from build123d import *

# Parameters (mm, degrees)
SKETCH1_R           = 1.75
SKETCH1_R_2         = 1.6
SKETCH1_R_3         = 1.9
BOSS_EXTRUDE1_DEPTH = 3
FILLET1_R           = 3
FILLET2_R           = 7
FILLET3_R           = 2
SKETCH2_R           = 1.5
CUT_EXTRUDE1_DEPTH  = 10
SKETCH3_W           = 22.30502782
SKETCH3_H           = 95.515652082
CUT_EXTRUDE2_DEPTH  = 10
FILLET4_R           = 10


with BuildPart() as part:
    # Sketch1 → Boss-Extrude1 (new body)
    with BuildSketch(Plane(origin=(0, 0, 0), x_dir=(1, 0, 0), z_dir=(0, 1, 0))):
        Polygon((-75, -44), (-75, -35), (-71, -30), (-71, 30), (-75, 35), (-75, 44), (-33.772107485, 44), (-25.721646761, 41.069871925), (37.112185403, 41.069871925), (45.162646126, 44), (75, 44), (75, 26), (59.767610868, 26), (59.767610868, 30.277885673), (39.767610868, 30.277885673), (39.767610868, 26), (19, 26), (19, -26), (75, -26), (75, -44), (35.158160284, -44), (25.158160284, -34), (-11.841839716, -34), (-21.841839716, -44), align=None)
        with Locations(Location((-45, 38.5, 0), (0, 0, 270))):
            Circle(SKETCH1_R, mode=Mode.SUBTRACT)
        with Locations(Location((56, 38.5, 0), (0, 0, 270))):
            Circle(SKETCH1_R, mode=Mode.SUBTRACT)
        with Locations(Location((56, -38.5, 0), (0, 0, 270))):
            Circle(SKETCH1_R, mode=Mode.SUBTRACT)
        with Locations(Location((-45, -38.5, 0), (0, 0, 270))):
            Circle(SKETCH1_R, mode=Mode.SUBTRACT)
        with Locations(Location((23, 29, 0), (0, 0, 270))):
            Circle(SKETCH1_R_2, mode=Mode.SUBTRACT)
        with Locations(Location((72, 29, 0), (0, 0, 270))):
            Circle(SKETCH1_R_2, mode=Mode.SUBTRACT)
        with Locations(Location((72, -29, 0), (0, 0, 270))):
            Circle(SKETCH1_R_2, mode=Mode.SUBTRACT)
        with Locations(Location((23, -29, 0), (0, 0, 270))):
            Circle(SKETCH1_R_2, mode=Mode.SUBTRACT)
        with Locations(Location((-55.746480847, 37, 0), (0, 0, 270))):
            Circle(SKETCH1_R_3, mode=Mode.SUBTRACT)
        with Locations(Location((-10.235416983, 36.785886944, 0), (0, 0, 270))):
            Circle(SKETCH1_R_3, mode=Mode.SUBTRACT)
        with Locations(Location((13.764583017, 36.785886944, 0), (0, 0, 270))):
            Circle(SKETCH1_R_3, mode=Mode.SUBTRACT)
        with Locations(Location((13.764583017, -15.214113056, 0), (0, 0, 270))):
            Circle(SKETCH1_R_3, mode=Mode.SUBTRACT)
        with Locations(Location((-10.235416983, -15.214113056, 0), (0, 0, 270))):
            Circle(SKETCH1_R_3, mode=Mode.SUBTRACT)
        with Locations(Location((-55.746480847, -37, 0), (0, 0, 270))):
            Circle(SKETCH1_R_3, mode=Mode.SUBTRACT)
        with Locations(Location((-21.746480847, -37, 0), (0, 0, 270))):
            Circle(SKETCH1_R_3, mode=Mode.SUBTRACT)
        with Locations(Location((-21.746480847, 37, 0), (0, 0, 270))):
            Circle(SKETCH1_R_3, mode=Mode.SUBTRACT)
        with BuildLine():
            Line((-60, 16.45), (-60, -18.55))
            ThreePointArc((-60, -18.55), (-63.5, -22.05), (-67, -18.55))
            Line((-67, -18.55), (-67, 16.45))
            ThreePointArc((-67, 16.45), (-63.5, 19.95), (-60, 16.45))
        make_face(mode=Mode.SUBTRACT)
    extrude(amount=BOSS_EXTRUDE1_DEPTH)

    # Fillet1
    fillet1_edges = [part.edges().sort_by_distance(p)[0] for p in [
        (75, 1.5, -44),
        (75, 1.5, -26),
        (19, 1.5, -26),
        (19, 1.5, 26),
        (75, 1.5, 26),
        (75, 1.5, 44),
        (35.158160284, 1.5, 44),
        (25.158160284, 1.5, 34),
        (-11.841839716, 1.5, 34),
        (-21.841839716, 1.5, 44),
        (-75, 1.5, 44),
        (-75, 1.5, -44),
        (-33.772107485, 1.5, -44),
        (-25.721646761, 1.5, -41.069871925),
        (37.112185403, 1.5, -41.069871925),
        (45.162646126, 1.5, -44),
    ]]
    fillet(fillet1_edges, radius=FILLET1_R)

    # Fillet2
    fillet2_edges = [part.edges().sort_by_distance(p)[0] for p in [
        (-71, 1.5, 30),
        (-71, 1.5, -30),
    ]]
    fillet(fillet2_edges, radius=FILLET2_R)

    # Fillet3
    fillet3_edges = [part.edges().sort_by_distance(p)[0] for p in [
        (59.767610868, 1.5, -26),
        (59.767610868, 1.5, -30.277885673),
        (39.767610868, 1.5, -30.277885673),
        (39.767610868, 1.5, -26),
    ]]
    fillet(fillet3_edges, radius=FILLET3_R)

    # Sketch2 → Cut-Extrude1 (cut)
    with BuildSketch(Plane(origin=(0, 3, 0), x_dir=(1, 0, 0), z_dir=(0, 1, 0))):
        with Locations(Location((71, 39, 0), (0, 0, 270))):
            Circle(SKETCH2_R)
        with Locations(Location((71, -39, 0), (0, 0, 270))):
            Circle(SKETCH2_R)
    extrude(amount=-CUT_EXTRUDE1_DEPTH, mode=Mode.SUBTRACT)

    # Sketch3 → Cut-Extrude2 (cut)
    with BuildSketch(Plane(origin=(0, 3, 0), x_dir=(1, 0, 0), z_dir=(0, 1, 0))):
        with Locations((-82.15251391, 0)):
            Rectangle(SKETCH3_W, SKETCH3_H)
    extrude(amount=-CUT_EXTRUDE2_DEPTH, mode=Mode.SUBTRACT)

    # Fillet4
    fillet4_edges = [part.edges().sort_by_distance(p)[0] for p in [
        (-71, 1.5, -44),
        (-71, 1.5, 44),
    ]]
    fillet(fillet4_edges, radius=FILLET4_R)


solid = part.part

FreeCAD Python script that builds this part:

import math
import FreeCAD as App
import Part
import Sketcher

V = App.Vector
Q = App.Units.Quantity


def edges_at(feature, points):
    """Names of the edges that pass closest to the given points."""
    edges = feature.Shape.Edges
    near = lambda p: min(range(len(edges)), key=lambda i: edges[i].distToShape(Part.Vertex(*p))[0])
    return sorted({f"Edge{near(p) + 1}" for p in points})

doc = App.newDocument("Part")
body = doc.addObject("PartDesign::Body", "Body")

# Sketch on XZ plane
sketch1 = doc.addObject("Sketcher::SketchObject", "Sketch")
body.addObject(sketch1)
sketch1.AttachmentSupport = (doc.XZ_Plane, [""])
sketch1.MapMode = "FlatFace"
sketch1.addGeometry([
    Part.LineSegment(V(-75, 35, 0), V(-75, 44, 0)),  # 0
    Part.LineSegment(V(-75, 44, 0), V(-21.8, 44, 0)),  # 1
    Part.LineSegment(V(-21.8, 44, 0), V(-11.8, 34, 0)),  # 2
    Part.LineSegment(V(-11.8, 34, 0), V(25.2, 34, 0)),  # 3
    Part.LineSegment(V(25.2, 34, 0), V(35.2, 44, 0)),  # 4
    Part.LineSegment(V(35.2, 44, 0), V(75, 44, 0)),  # 5
    Part.LineSegment(V(75, 44, 0), V(75, 26, 0)),  # 6
    Part.LineSegment(V(75, 26, 0), V(19, 26, 0)),  # 7
    Part.LineSegment(V(19, 26, 0), V(19, -26, 0)),  # 8
    Part.LineSegment(V(19, -26, 0), V(39.8, -26, 0)),  # 9
    Part.LineSegment(V(39.8, -26, 0), V(39.8, -30.3, 0)),  # 10
    Part.LineSegment(V(39.8, -30.3, 0), V(59.8, -30.3, 0)),  # 11
    Part.LineSegment(V(59.8, -30.3, 0), V(59.8, -26, 0)),  # 12
    Part.LineSegment(V(59.8, -26, 0), V(75, -26, 0)),  # 13
    Part.LineSegment(V(75, -26, 0), V(75, -44, 0)),  # 14
    Part.LineSegment(V(75, -44, 0), V(45.2, -44, 0)),  # 15
    Part.LineSegment(V(45.2, -44, 0), V(37.1, -41.1, 0)),  # 16
    Part.LineSegment(V(37.1, -41.1, 0), V(-25.7, -41.1, 0)),  # 17
    Part.LineSegment(V(-25.7, -41.1, 0), V(-33.8, -44, 0)),  # 18
    Part.LineSegment(V(-33.8, -44, 0), V(-75, -44, 0)),  # 19
    Part.LineSegment(V(-75, -44, 0), V(-75, -35, 0)),  # 20
    Part.LineSegment(V(-75, -35, 0), V(-71, -30, 0)),  # 21
    Part.LineSegment(V(-71, -30, 0), V(-71, 30, 0)),  # 22
    Part.LineSegment(V(-71, 30, 0), V(-75, 35, 0)),  # 23
    Part.Circle(V(56, 38.5, 0), V(0, 0, 1), 1.8),  # 24
    Part.Circle(V(72, 29, 0), V(0, 0, 1), 1.6),  # 25
    Part.Circle(V(23, 29, 0), V(0, 0, 1), 1.6),  # 26
    Part.Circle(V(13.8, 15.2, 0), V(0, 0, 1), 1.9),  # 27
    Part.Circle(V(-21.7, 37, 0), V(0, 0, 1), 1.9),  # 28
    Part.Circle(V(-45, 38.5, 0), V(0, 0, 1), 1.8),  # 29
    Part.Circle(V(-55.7, 37, 0), V(0, 0, 1), 1.9),  # 30
    Part.Circle(V(-10.2, 15.2, 0), V(0, 0, 1), 1.9),  # 31
    Part.LineSegment(V(-60, -16.4, 0), V(-60, 18.6, 0)),  # 32
    Part.ArcOfCircle(Part.Circle(V(-63.5, 18.6, 0), V(0, 0, 1), 3.5), math.radians(0), math.radians(180)),  # 33
    Part.LineSegment(V(-67, 18.6, 0), V(-67, -16.4, 0)),  # 34
    Part.ArcOfCircle(Part.Circle(V(-63.5, -16.4, 0), V(0, 0, 1), 3.5), math.radians(180), math.radians(360)),  # 35
    Part.Circle(V(72, -29, 0), V(0, 0, 1), 1.6),  # 36
    Part.Circle(V(56, -38.5, 0), V(0, 0, 1), 1.8),  # 37
    Part.Circle(V(23, -29, 0), V(0, 0, 1), 1.6),  # 38
    Part.Circle(V(13.8, -36.8, 0), V(0, 0, 1), 1.9),  # 39
    Part.Circle(V(-10.2, -36.8, 0), V(0, 0, 1), 1.9),  # 40
    Part.Circle(V(-21.7, -37, 0), V(0, 0, 1), 1.9),  # 41
    Part.Circle(V(-45, -38.5, 0), V(0, 0, 1), 1.8),  # 42
    Part.Circle(V(-55.7, -37, 0), V(0, 0, 1), 1.9),  # 43
], False)
sketch1.addConstraint([
    Sketcher.Constraint("Coincident", 0, 2, 1, 1),
    Sketcher.Constraint("Coincident", 1, 2, 2, 1),
    Sketcher.Constraint("Coincident", 2, 2, 3, 1),
    Sketcher.Constraint("Coincident", 3, 2, 4, 1),
    Sketcher.Constraint("Coincident", 4, 2, 5, 1),
    Sketcher.Constraint("Coincident", 5, 2, 6, 1),
    Sketcher.Constraint("Coincident", 6, 2, 7, 1),
    Sketcher.Constraint("Coincident", 7, 2, 8, 1),
    Sketcher.Constraint("Coincident", 8, 2, 9, 1),
    Sketcher.Constraint("Coincident", 9, 2, 10, 1),
    Sketcher.Constraint("Coincident", 10, 2, 11, 1),
    Sketcher.Constraint("Coincident", 11, 2, 12, 1),
    Sketcher.Constraint("Coincident", 12, 2, 13, 1),
    Sketcher.Constraint("Coincident", 13, 2, 14, 1),
    Sketcher.Constraint("Coincident", 14, 2, 15, 1),
    Sketcher.Constraint("Coincident", 15, 2, 16, 1),
    Sketcher.Constraint("Coincident", 16, 2, 17, 1),
    Sketcher.Constraint("Coincident", 17, 2, 18, 1),
    Sketcher.Constraint("Coincident", 18, 2, 19, 1),
    Sketcher.Constraint("Coincident", 19, 2, 20, 1),
    Sketcher.Constraint("Coincident", 20, 2, 21, 1),
    Sketcher.Constraint("Coincident", 21, 2, 22, 1),
    Sketcher.Constraint("Coincident", 22, 2, 23, 1),
    Sketcher.Constraint("Coincident", 23, 2, 0, 1),
    Sketcher.Constraint("Tangent", 32, 2, 33, 1),
    Sketcher.Constraint("Tangent", 33, 2, 34, 1),
    Sketcher.Constraint("Tangent", 34, 2, 35, 1),
    Sketcher.Constraint("Tangent", 35, 2, 32, 1),
    Sketcher.Constraint("Vertical", 0),
    Sketcher.Constraint("Horizontal", 1),
    Sketcher.Constraint("Horizontal", 3),
    Sketcher.Constraint("Horizontal", 5),
    Sketcher.Constraint("Vertical", 6),
    Sketcher.Constraint("Horizontal", 7),
    Sketcher.Constraint("Vertical", 8),
    Sketcher.Constraint("Horizontal", 9),
    Sketcher.Constraint("Vertical", 10),
    Sketcher.Constraint("Horizontal", 11),
    Sketcher.Constraint("Vertical", 12),
    Sketcher.Constraint("Horizontal", 13),
    Sketcher.Constraint("Vertical", 14),
    Sketcher.Constraint("Horizontal", 15),
    Sketcher.Constraint("Horizontal", 17),
    Sketcher.Constraint("Horizontal", 19),
    Sketcher.Constraint("Vertical", 20),
    Sketcher.Constraint("Vertical", 22),
    Sketcher.Constraint("Vertical", 32),
    Sketcher.Constraint("Vertical", 34),
    Sketcher.Constraint("Equal", 25, 26),
    Sketcher.Constraint("Equal", 27, 28),
    Sketcher.Constraint("Equal", 24, 29),
    Sketcher.Constraint("Equal", 28, 30),
    Sketcher.Constraint("Equal", 30, 31),
    Sketcher.Constraint("Equal", 26, 36),
    Sketcher.Constraint("Equal", 29, 37),
    Sketcher.Constraint("Equal", 36, 38),
    Sketcher.Constraint("Equal", 31, 39),
    Sketcher.Constraint("Equal", 39, 40),
    Sketcher.Constraint("Equal", 40, 41),
    Sketcher.Constraint("Equal", 37, 42),
    Sketcher.Constraint("Equal", 41, 43),
    Sketcher.Constraint("Symmetric", 0, 2, 14, 2, -1, 1),
    Sketcher.Constraint("Symmetric", 5, 2, 19, 2, -1, 1),
    Sketcher.Constraint("Symmetric", 0, 2, 5, 2, -2),
    Sketcher.Constraint("Symmetric", 25, 3, 36, 3, -1),
    Sketcher.Constraint("Symmetric", 24, 3, 37, 3, -1),
    Sketcher.Constraint("Symmetric", 26, 3, 38, 3, -1),
    Sketcher.Constraint("Symmetric", 28, 3, 41, 3, -1),
    Sketcher.Constraint("Symmetric", 29, 3, 42, 3, -1),
    Sketcher.Constraint("Symmetric", 30, 3, 43, 3, -1),
    Sketcher.Constraint("Perpendicular", 2, 4),
    Sketcher.Constraint("Horizontal", 25, 3, 26, 3),
    Sketcher.Constraint("Horizontal", 24, 3, 29, 3),
    Sketcher.Constraint("Horizontal", 28, 3, 30, 3),
    Sketcher.Constraint("Horizontal", 27, 3, 31, 3),
    Sketcher.Constraint("Horizontal", 39, 3, 40, 3),
    Sketcher.Constraint("Horizontal", 9, 2, 12, 2),
    Sketcher.Constraint("Vertical", 27, 3, 39, 3),
    Sketcher.Constraint("Vertical", 31, 3, 40, 3),
    Sketcher.Constraint("Equal", 6, 14),
    Sketcher.Constraint("Equal", 0, 20),
    Sketcher.Constraint("Equal", 2, 4),
    Sketcher.Constraint("Equal", 16, 18),
    Sketcher.Constraint("Equal", 21, 23),
    Sketcher.Constraint("Diameter", 24, Q("3.5 mm")),
    Sketcher.Constraint("Diameter", 25, Q("3.2 mm")),
    Sketcher.Constraint("Diameter", 27, Q("3.8 mm")),
    Sketcher.Constraint("Radius", 33, Q("3.5 mm")),
    Sketcher.Constraint("DistanceX", 3, 1, 3, 2, Q("37 mm")),
    Sketcher.Constraint("DistanceX", 7, 2, 7, 1, Q("56 mm")),
    Sketcher.Constraint("DistanceX", 11, 1, 11, 2, Q("20 mm")),
    Sketcher.Constraint("DistanceY", 0, 1, 0, 2, Q("9 mm")),
    Sketcher.Constraint("DistanceY", 6, 2, 6, 1, Q("18 mm")),
    Sketcher.Constraint("DistanceY", 8, 2, 8, 1, Q("52 mm")),
    Sketcher.Constraint("DistanceY", 22, 1, 22, 2, Q("60 mm")),
    Sketcher.Constraint("DistanceY", 32, 1, 32, 2, Q("35 mm")),
    Sketcher.Constraint("Angle", 16, Q("160 deg")),
    Sketcher.Constraint("DistanceX", -1, 1, 24, 3, Q("56 mm")),
    Sketcher.Constraint("DistanceX", -1, 1, 25, 3, Q("72 mm")),
    Sketcher.Constraint("DistanceY", -1, 1, 25, 3, Q("29 mm")),
    Sketcher.Constraint("DistanceX", -1, 1, 26, 3, Q("23 mm")),
    Sketcher.Constraint("DistanceY", -1, 1, 28, 3, Q("37 mm")),
    Sketcher.Constraint("DistanceX", 29, 3, -1, 1, Q("45 mm")),
    Sketcher.Constraint("DistanceX", 0, 2, -1, 1, Q("75 mm")),
    Sketcher.Constraint("DistanceY", -1, 1, 2, 2, Q("34 mm")),
    Sketcher.Constraint("DistanceX", 21, 2, -1, 1, Q("71 mm")),
    Sketcher.Constraint("DistanceX", 32, 2, -1, 1, Q("60 mm")),
    Sketcher.Constraint("DistanceX", 30, 3, 28, 3, Q("34 mm")),
    Sketcher.Constraint("DistanceX", 31, 3, 27, 3, Q("24 mm")),
    Sketcher.Constraint("DistanceY", 37, 3, 24, 3, Q("77 mm")),
    Sketcher.Constraint("DistanceY", 39, 3, 27, 3, Q("52 mm")),
    Sketcher.Constraint("DistanceY", -1, 1, 33, 3, Q("18.55 mm")),
    Sketcher.Constraint("DistanceY", 39, 3, 10, 2, Q("6.508001 mm")),
    Sketcher.Constraint("DistanceX", 1, 1, 1, 2, Q("53.15816 mm")),
    Sketcher.Constraint("DistanceX", 9, 1, 9, 2, Q("20.767611 mm")),
    Sketcher.Constraint("Distance", 16, Q("8.567121 mm")),
    Sketcher.Constraint("DistanceX", 15, 2, 15, 1, Q("29.837354 mm")),
    Sketcher.Constraint("DistanceX", 17, 2, 17, 1, Q("62.833832 mm")),
    Sketcher.Constraint("DistanceY", 10, 2, 10, 1, Q("4.277886 mm")),
    Sketcher.Constraint("DistanceX", 28, 3, -1, 1, Q("21.746481 mm")),
    Sketcher.Constraint("DistanceX", 17, 2, 40, 3, Q("15.48623 mm")),
])
pad1 = doc.addObject("PartDesign::Pad", "Pad")
body.addObject(pad1)
pad1.Profile = sketch1
pad1.Length = 3
pad1.Reversed = True
doc.recompute()

fillet = doc.addObject("PartDesign::Fillet", "Fillet")
body.addObject(fillet)
fillet.Base = (pad1, edges_at(pad1, [
    (75, 1.5, -44),
    (75, 1.5, -26),
    (19, 1.5, -26),
    (19, 1.5, 26),
    (75, 1.5, 26),
    (75, 1.5, 44),
    (35.158, 1.5, 44),
    (25.158, 1.5, 34),
    (-11.842, 1.5, 34),
    (-21.842, 1.5, 44),
    (-75, 1.5, 44),
    (-75, 1.5, -44),
    (-33.772, 1.5, -44),
    (-25.722, 1.5, -41.07),
    (37.112, 1.5, -41.07),
    (45.163, 1.5, -44),
]))
fillet.Radius = 3
doc.recompute()

fillet2 = doc.addObject("PartDesign::Fillet", "Fillet001")
body.addObject(fillet2)
fillet2.Base = (fillet, edges_at(fillet, [(-71, 1.5, 30), (-71, 1.5, -30)]))
fillet2.Radius = 7
doc.recompute()

fillet3 = doc.addObject("PartDesign::Fillet", "Fillet002")
body.addObject(fillet3)
fillet3.Base = (fillet2, edges_at(fillet2, [
    (59.768, 1.5, -26),
    (59.768, 1.5, -30.278),
    (39.768, 1.5, -30.278),
    (39.768, 1.5, -26),
]))
fillet3.Radius = 2

# Sketch on XZ plane
sketch2 = doc.addObject("Sketcher::SketchObject", "Sketch001")
body.addObject(sketch2)
sketch2.AttachmentSupport = (doc.XZ_Plane, [""])
sketch2.MapMode = "FlatFace"
sketch2.AttachmentOffset = App.Placement(V(0, 0, -3), App.Rotation())
sketch2.addGeometry([
    Part.Circle(V(71, -39, 0), V(0, 0, 1), 1.5),
    Part.Circle(V(71, 39, 0), V(0, 0, 1), 1.5),
], False)
sketch2.addConstraint([
    Sketcher.Constraint("Equal", 0, 1),
    Sketcher.Constraint("Symmetric", 0, 3, 1, 3, -1),
    Sketcher.Constraint("Diameter", 0, Q("3 mm")),
    Sketcher.Constraint("DistanceX", -1, 1, 0, 3, Q("71 mm")),
    Sketcher.Constraint("DistanceY", 0, 3, -1, 1, Q("39 mm")),
])
pocket1 = doc.addObject("PartDesign::Pocket", "Pocket")
body.addObject(pocket1)
pocket1.Profile = sketch2
pocket1.Length = 10
pocket1.Reversed = True

# Sketch on XZ plane
sketch3 = doc.addObject("Sketcher::SketchObject", "Sketch002")
body.addObject(sketch3)
sketch3.AttachmentSupport = (doc.XZ_Plane, [""])
sketch3.MapMode = "FlatFace"
sketch3.AttachmentOffset = App.Placement(V(0, 0, -3), App.Rotation())
sketch3.addGeometry([
    Part.LineSegment(V(-93, -48, 0), V(-93, 48, 0)),
    Part.LineSegment(V(-93, 48, 0), V(-71, 48, 0)),
    Part.LineSegment(V(-71, 48, 0), V(-71, -48, 0)),
    Part.LineSegment(V(-71, -48, 0), V(-93, -48, 0)),
], False)
sketch3.addConstraint([
    Sketcher.Constraint("Coincident", 0, 2, 1, 1),
    Sketcher.Constraint("Coincident", 1, 2, 2, 1),
    Sketcher.Constraint("Coincident", 2, 2, 3, 1),
    Sketcher.Constraint("Coincident", 3, 2, 0, 1),
    Sketcher.Constraint("Vertical", 0),
    Sketcher.Constraint("Horizontal", 1),
    Sketcher.Constraint("Vertical", 2),
    Sketcher.Constraint("Horizontal", 3),
    Sketcher.Constraint("DistanceX", 1, 2, -1, 1, Q("71 mm")),
    Sketcher.Constraint("DistanceX", 1, 1, 1, 2, Q("22.305028 mm")),
    Sketcher.Constraint("DistanceY", 0, 1, 0, 2, Q("95.515652 mm")),
    Sketcher.Constraint("DistanceY", -1, 1, 0, 2, Q("47.757826 mm")),
])
pocket2 = doc.addObject("PartDesign::Pocket", "Pocket001")
body.addObject(pocket2)
pocket2.Profile = sketch3
pocket2.Length = 10
pocket2.Reversed = True
doc.recompute()

fillet4 = doc.addObject("PartDesign::Fillet", "Fillet003")
body.addObject(fillet4)
fillet4.Base = (pocket2, edges_at(pocket2, [(-71, 1.5, -44), (-71, 1.5, 44)]))
fillet4.Radius = 10

doc.recompute()
